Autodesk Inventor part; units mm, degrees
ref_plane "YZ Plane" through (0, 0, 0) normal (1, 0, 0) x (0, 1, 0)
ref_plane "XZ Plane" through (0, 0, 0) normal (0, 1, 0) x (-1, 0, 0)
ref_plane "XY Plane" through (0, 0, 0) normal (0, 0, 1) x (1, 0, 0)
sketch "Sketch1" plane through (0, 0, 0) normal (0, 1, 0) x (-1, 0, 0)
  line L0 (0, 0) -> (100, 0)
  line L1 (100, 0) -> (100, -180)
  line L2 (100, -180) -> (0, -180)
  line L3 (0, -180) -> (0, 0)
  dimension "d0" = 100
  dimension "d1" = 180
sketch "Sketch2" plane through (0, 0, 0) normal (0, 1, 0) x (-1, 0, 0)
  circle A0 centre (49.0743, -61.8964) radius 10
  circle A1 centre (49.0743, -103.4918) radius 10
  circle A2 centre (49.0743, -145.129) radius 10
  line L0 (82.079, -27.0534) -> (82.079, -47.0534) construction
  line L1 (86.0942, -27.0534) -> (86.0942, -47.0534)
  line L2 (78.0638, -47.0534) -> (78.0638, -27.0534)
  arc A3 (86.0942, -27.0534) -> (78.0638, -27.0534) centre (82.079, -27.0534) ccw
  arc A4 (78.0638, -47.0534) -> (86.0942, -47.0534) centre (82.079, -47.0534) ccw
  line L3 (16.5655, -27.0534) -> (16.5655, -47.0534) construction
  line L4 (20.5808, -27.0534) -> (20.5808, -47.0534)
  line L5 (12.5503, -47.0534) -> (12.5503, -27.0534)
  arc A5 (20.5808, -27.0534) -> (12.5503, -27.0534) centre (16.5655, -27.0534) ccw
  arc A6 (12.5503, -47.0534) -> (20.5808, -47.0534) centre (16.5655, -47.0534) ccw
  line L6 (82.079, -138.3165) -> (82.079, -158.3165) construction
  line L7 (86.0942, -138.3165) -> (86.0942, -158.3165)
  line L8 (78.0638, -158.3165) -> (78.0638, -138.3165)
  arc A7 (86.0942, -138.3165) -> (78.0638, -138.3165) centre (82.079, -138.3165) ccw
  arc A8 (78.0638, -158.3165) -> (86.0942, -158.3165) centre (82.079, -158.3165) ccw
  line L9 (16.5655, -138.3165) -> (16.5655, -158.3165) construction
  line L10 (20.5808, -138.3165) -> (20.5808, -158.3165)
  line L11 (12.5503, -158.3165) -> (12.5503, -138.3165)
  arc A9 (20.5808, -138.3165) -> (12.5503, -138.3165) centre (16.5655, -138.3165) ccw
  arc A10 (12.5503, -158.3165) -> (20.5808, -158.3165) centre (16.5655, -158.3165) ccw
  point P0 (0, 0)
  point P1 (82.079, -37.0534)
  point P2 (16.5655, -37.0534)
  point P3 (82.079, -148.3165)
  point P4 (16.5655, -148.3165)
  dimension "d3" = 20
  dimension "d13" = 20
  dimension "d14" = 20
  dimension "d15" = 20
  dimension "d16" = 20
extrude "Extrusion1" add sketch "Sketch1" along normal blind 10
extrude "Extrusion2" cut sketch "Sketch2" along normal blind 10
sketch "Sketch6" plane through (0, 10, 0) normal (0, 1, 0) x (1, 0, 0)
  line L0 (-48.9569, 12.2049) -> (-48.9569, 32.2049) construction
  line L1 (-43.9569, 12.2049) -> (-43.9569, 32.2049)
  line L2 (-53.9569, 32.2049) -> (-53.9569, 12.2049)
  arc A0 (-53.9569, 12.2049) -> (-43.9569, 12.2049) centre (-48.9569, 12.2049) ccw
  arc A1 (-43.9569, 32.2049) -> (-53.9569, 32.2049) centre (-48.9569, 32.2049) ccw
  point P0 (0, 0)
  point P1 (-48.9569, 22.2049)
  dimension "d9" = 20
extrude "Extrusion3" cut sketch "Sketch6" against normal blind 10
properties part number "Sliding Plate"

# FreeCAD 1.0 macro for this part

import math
import FreeCAD as App
import Part
import Sketcher

V = App.Vector


def add_polygon(sketch, points):
    """Adds a closed chain of lines whose ends are joined by coincident constraints."""
    first, n = sketch.GeometryCount, len(points)
    for a, b in zip(points, points[1:] + points[:1]):
        sketch.addGeometry(Part.LineSegment(App.Vector(*a, 0), App.Vector(*b, 0)), False)
    for i in range(n):
        sketch.addConstraint(Sketcher.Constraint("Coincident", first + i, 2, first + (i + 1) % n, 1))

doc = App.newDocument("Part")
params = doc.addObject("Spreadsheet::Sheet", "Params")
for row, (alias, value) in enumerate([
    ("sketch1_width", "100 mm"),
    ("sketch1_height", "180 mm"),
    ("pad1_length", "10 mm"),
    ("sketch2_diameter", "20 mm"),
    ("sketch2_height", "20 mm"),
    ("pocket1_length", "10 mm"),
    ("sketch3_height", "20 mm"),
    ("sketch3_radius", "5 mm"),
    ("pocket2_length", "10 mm"),
], start=1):
    params.set(f"A{row}", alias)
    params.set(f"B{row}", "=" + value)
    params.setAlias(f"B{row}", alias)

body = doc.addObject("PartDesign::Body", "Body")

# Sketch on XZ plane
sketch1 = body.newObject("Sketcher::SketchObject", "Sketch")
sketch1.AttachmentSupport = (doc.getObject("XZ_Plane"), [""])
sketch1.MapMode = "FlatFace"
add_polygon(sketch1, [(-100, 0), (0, 0), (0, -180), (-100, -180)])  # lines 0-3
sketch1.addConstraint(Sketcher.Constraint("Horizontal", 0))
sketch1.addConstraint(Sketcher.Constraint("Vertical", 1))
sketch1.addConstraint(Sketcher.Constraint("Horizontal", 2))
sketch1.addConstraint(Sketcher.Constraint("Vertical", 3))
sketch1.addConstraint(Sketcher.Constraint("Coincident", 0, 2, -1, 1))
sketch1.addConstraint(Sketcher.Constraint("DistanceX", 0, 1, 0, 2, 100.0))
sketch1.addConstraint(Sketcher.Constraint("DistanceY", 1, 2, 1, 1, 180.0))
sketch1.setExpression("Constraints[9]", "Params.sketch1_width")
sketch1.setExpression("Constraints[10]", "Params.sketch1_height")
pad1 = body.newObject("PartDesign::Pad", "Pad")
pad1.Profile = sketch1
pad1.setExpression("Length", "Params.pad1_length")
pad1.Reversed = True

# Sketch on XZ plane
sketch2 = body.newObject("Sketcher::SketchObject", "Sketch001")
sketch2.AttachmentSupport = (doc.getObject("XZ_Plane"), [""])
sketch2.MapMode = "FlatFace"
sketch2.addGeometry(Part.Circle(V(-49.0743, -61.8964, 0), V(0, 0, 1), 10), False)
sketch2.addGeometry(Part.Circle(V(-49.0743, -103.4918, 0), V(0, 0, 1), 10), False)
sketch2.addGeometry(Part.Circle(V(-49.0743, -145.129, 0), V(0, 0, 1), 10), False)
sketch2.addGeometry(Part.LineSegment(V(-86.0942, -47.0534, 0), V(-86.0942, -27.0534, 0)), False)
sketch2.addGeometry(Part.ArcOfCircle(Part.Circle(V(-82.079, -27.0534, 0), V(0, 0, 1), 4.0152), math.radians(0), math.radians(180)), False)
sketch2.addGeometry(Part.LineSegment(V(-78.0638, -27.0534, 0), V(-78.0638, -47.0534, 0)), False)
sketch2.addGeometry(Part.ArcOfCircle(Part.Circle(V(-82.079, -47.0534, 0), V(0, 0, 1), 4.0152), math.radians(180), math.radians(360)), False)
sketch2.addGeometry(Part.LineSegment(V(-20.5808, -47.0534, 0), V(-20.5808, -27.0534, 0)), False)
sketch2.addGeometry(Part.ArcOfCircle(Part.Circle(V(-16.5655, -27.0534, 0), V(0, 0, 1), 4.0153), math.radians(0), math.radians(180)), False)
sketch2.addGeometry(Part.LineSegment(V(-12.5503, -27.0534, 0), V(-12.5503, -47.0534, 0)), False)
sketch2.addGeometry(Part.ArcOfCircle(Part.Circle(V(-16.5655, -47.0534, 0), V(0, 0, 1), 4.0152), math.radians(180), math.radians(360)), False)
sketch2.addGeometry(Part.LineSegment(V(-86.0942, -158.3165, 0), V(-86.0942, -138.3165, 0)), False)
sketch2.addGeometry(Part.ArcOfCircle(Part.Circle(V(-82.079, -138.3165, 0), V(0, 0, 1), 4.0152), math.radians(0), math.radians(180)), False)
sketch2.addGeometry(Part.LineSegment(V(-78.0638, -138.3165, 0), V(-78.0638, -158.3165, 0)), False)
sketch2.addGeometry(Part.ArcOfCircle(Part.Circle(V(-82.079, -158.3165, 0), V(0, 0, 1), 4.0152), math.radians(180), math.radians(360)), False)
sketch2.addGeometry(Part.LineSegment(V(-20.5808, -158.3165, 0), V(-20.5808, -138.3165, 0)), False)
sketch2.addGeometry(Part.ArcOfCircle(Part.Circle(V(-16.5655, -138.3165, 0), V(0, 0, 1), 4.0153), math.radians(0), math.radians(180)), False)
sketch2.addGeometry(Part.LineSegment(V(-12.5503, -138.3165, 0), V(-12.5503, -158.3165, 0)), False)
sketch2.addGeometry(Part.ArcOfCircle(Part.Circle(V(-16.5655, -158.3165, 0), V(0, 0, 1), 4.0152), math.radians(180), math.radians(360)), False)
sketch2.addConstraint(Sketcher.Constraint("Tangent", 3, 2, 4, 2))
sketch2.addConstraint(Sketcher.Constraint("Tangent", 4, 1, 5, 1))
sketch2.addConstraint(Sketcher.Constraint("Tangent", 5, 2, 6, 2))
sketch2.addConstraint(Sketcher.Constraint("Tangent", 6, 1, 3, 1))
sketch2.addConstraint(Sketcher.Constraint("Tangent", 7, 2, 8, 2))
sketch2.addConstraint(Sketcher.Constraint("Tangent", 8, 1, 9, 1))
sketch2.addConstraint(Sketcher.Constraint("Tangent", 9, 2, 10, 2))
sketch2.addConstraint(Sketcher.Constraint("Tangent", 10, 1, 7, 1))
sketch2.addConstraint(Sketcher.Constraint("Tangent", 11, 2, 12, 2))
sketch2.addConstraint(Sketcher.Constraint("Tangent", 12, 1, 13, 1))
sketch2.addConstraint(Sketcher.Constraint("Tangent", 13, 2, 14, 2))
sketch2.addConstraint(Sketcher.Constraint("Tangent", 14, 1, 11, 1))
sketch2.addConstraint(Sketcher.Constraint("Tangent", 15, 2, 16, 2))
sketch2.addConstraint(Sketcher.Constraint("Tangent", 16, 1, 17, 1))
sketch2.addConstraint(Sketcher.Constraint("Tangent", 17, 2, 18, 2))
sketch2.addConstraint(Sketcher.Constraint("Tangent", 18, 1, 15, 1))
sketch2.addConstraint(Sketcher.Constraint("Vertical", 3))
sketch2.addConstraint(Sketcher.Constraint("Vertical", 5))
sketch2.addConstraint(Sketcher.Constraint("Vertical", 7))
sketch2.addConstraint(Sketcher.Constraint("Vertical", 9))
sketch2.addConstraint(Sketcher.Constraint("Vertical", 11))
sketch2.addConstraint(Sketcher.Constraint("Vertical", 13))
sketch2.addConstraint(Sketcher.Constraint("Vertical", 15))
sketch2.addConstraint(Sketcher.Constraint("Vertical", 17))
sketch2.addConstraint(Sketcher.Constraint("Equal", 0, 1))
sketch2.addConstraint(Sketcher.Constraint("Equal", 1, 2))
sketch2.addConstraint(Sketcher.Constraint("Equal", 6, 8))
sketch2.addConstraint(Sketcher.Constraint("Equal", 10, 12))
sketch2.addConstraint(Sketcher.Constraint("Equal", 14, 16))
sketch2.addConstraint(Sketcher.Constraint("Horizontal", 4, 3, 8, 3))
sketch2.addConstraint(Sketcher.Constraint("Horizontal", 6, 3, 10, 3))
sketch2.addConstraint(Sketcher.Constraint("Horizontal", 12, 3, 16, 3))
sketch2.addConstraint(Sketcher.Constraint("Horizontal", 14, 3, 18, 3))
sketch2.addConstraint(Sketcher.Constraint("Vertical", 0, 3, 1, 3))
sketch2.addConstraint(Sketcher.Constraint("Vertical", 1, 3, 2, 3))
sketch2.addConstraint(Sketcher.Constraint("Vertical", 6, 3, 12, 3))
sketch2.addConstraint(Sketcher.Constraint("Vertical", 10, 3, 16, 3))
sketch2.addConstraint(Sketcher.Constraint("Equal", 9, 11))
sketch2.addConstraint(Sketcher.Constraint("Diameter", 0, 20.0))
sketch2.addConstraint(Sketcher.Constraint("DistanceY", 3, 1, 3, 2, 20.0))
sketch2.addConstraint(Sketcher.Constraint("Radius", 4, 4.0152))
sketch2.addConstraint(Sketcher.Constraint("DistanceY", 12, 3, 0, 3, 76.42))
sketch2.addConstraint(Sketcher.Constraint("DistanceX", 3, 2, 0, 3, 37.02))
sketch2.addConstraint(Sketcher.Constraint("DistanceY", 2, 3, -1, 1, 145.129))
sketch2.addConstraint(Sketcher.Constraint("DistanceX", 4, 3, -1, 1, 82.079))
sketch2.addConstraint(Sketcher.Constraint("DistanceY", 0, 3, 4, 3, 34.843))
sketch2.addConstraint(Sketcher.Constraint("DistanceX", 4, 1, 7, 2, 57.483))
sketch2.addConstraint(Sketcher.Constraint("DistanceY", 0, 3, -1, 1, 61.8964))
sketch2.addConstraint(Sketcher.Constraint("DistanceY", 1, 3, -1, 1, 103.4918))
sketch2.setExpression("Constraints[38]", "Params.sketch2_diameter")
sketch2.setExpression("Constraints[39]", "Params.sketch2_height")
pocket1 = body.newObject("PartDesign::Pocket", "Pocket")
pocket1.Profile = sketch2
pocket1.setExpression("Length", "Params.pocket1_length")

# Sketch on XZ plane
sketch3 = body.newObject("Sketcher::SketchObject", "Sketch002")
sketch3.AttachmentSupport = (doc.getObject("XZ_Plane"), [""])
sketch3.MapMode = "FlatFace"
sketch3.AttachmentOffset = App.Placement(V(0, 0, -10), App.Rotation())
sketch3.addGeometry(Part.ArcOfCircle(Part.Circle(V(-48.9569, -12.2049, 0), V(0, 0, 1), 5), math.radians(0), math.radians(180)), False)
sketch3.addGeometry(Part.LineSegment(V(-43.9569, -12.2049, 0), V(-43.9569, -32.2049, 0)), False)
sketch3.addGeometry(Part.ArcOfCircle(Part.Circle(V(-48.9569, -32.2049, 0), V(0, 0, 1), 5), math.radians(180), math.radians(360)), False)
sketch3.addGeometry(Part.LineSegment(V(-53.9569, -32.2049, 0), V(-53.9569, -12.2049, 0)), False)
sketch3.addConstraint(Sketcher.Constraint("Tangent", 0, 1, 1, 1))
sketch3.addConstraint(Sketcher.Constraint("Tangent", 1, 2, 2, 2))
sketch3.addConstraint(Sketcher.Constraint("Tangent", 2, 1, 3, 1))
sketch3.addConstraint(Sketcher.Constraint("Tangent", 3, 2, 0, 2))
sketch3.addConstraint(Sketcher.Constraint("Vertical", 1))
sketch3.addConstraint(Sketcher.Constraint("Vertical", 3))
sketch3.addConstraint(Sketcher.Constraint("DistanceY", 1, 2, 1, 1, 20.0))
sketch3.addConstraint(Sketcher.Constraint("Radius", 0, 5.0))
sketch3.addConstraint(Sketcher.Constraint("DistanceX", 0, 3, -1, 1, 48.957))
sketch3.addConstraint(Sketcher.Constraint("DistanceY", 0, 3, -1, 1, 12.205))
sketch3.setExpression("Constraints[6]", "Params.sketch3_height")
sketch3.setExpression("Constraints[7]", "Params.sketch3_radius")
pocket2 = body.newObject("PartDesign::Pocket", "Pocket001")
pocket2.Profile = sketch3
pocket2.setExpression("Length", "Params.pocket2_length")
pocket2.Reversed = True

doc.recompute()
